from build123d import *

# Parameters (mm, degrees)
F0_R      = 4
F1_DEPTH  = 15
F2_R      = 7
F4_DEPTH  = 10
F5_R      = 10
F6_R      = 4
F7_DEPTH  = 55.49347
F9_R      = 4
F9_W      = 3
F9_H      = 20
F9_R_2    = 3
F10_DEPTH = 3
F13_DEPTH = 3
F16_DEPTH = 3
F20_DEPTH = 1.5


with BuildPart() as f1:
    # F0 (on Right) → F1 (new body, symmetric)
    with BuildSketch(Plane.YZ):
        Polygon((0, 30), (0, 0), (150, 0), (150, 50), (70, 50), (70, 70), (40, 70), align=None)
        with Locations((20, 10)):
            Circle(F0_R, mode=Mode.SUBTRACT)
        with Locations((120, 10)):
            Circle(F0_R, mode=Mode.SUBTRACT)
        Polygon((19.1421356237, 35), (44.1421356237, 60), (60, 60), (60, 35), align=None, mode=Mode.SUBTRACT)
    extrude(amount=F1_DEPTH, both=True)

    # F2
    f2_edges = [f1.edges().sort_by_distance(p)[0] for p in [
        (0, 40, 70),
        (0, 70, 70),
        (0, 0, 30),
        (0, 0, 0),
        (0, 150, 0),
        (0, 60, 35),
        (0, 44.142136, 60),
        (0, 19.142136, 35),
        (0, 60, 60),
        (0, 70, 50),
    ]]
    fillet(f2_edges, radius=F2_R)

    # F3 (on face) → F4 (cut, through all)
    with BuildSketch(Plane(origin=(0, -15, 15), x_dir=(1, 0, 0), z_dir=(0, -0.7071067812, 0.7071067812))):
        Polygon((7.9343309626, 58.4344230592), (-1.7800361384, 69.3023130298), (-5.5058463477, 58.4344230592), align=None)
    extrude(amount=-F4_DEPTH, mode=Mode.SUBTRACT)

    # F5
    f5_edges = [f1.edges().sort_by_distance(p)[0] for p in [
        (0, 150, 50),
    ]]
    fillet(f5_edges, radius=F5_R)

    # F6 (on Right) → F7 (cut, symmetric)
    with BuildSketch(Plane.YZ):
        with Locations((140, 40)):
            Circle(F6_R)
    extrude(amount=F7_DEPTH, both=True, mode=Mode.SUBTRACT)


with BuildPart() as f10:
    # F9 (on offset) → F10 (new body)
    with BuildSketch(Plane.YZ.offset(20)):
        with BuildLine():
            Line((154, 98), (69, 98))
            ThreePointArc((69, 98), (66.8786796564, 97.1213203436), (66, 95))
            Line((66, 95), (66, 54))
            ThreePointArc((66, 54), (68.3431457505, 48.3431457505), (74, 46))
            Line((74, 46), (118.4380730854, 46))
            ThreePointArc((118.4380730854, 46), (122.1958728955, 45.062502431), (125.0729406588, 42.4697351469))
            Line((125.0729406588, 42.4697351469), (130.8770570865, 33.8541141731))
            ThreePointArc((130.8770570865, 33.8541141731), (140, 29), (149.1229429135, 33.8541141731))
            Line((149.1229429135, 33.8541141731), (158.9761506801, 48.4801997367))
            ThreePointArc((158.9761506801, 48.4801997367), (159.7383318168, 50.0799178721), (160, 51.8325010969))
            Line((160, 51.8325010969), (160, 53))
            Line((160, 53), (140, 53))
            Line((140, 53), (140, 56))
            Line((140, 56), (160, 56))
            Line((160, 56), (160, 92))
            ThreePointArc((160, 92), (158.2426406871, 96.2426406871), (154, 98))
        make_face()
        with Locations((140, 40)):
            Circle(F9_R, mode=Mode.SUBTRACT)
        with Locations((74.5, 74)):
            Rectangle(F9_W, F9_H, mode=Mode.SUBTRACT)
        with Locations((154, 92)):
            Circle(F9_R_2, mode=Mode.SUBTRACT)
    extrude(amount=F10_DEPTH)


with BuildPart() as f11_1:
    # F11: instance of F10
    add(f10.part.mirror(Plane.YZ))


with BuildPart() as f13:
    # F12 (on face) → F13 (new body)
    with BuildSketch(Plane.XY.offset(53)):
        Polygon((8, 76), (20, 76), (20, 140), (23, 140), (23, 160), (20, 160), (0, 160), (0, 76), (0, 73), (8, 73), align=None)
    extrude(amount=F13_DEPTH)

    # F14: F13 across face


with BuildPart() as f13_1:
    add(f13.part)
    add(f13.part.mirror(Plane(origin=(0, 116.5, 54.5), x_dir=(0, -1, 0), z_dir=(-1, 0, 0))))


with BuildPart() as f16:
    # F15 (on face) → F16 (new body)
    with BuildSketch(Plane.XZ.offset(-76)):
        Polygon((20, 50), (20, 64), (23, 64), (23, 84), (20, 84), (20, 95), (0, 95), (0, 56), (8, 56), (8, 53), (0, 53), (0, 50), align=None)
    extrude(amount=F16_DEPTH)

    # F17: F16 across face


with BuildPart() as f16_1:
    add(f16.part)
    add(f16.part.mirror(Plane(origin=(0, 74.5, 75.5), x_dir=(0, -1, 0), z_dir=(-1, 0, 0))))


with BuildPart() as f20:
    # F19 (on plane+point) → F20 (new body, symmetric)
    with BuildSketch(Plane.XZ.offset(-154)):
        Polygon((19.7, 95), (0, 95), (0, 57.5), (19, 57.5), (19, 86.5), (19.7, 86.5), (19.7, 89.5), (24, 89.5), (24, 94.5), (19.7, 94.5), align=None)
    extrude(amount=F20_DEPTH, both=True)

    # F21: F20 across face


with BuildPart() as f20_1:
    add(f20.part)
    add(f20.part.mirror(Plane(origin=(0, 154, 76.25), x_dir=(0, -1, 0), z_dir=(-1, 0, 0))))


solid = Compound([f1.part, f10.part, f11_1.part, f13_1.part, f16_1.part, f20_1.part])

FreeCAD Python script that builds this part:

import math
import FreeCAD as App
import Part
import Sketcher
from FreeCAD import Vector
Q = App.Units.Quantity


def edges_at(feature, points):
    """Names of the edges that pass closest to the given points."""
    edges = feature.Shape.Edges
    near = lambda p: min(range(len(edges)), key=lambda i: edges[i].distToShape(Part.Vertex(*p))[0])
    return sorted({f"Edge{near(p) + 1}" for p in points})

doc = App.newDocument("Part")
body = doc.addObject("PartDesign::Body", "Body")

sketch1 = body.newObject("Sketcher::SketchObject", "Sketch")
sketch1.AttachmentSupport = (doc.getObject("YZ_Plane"), [""])
sketch1.MapMode = "FlatFace"
sketch1.addGeometry([
    Part.LineSegment(Vector(0, 30, 0), Vector(0, 0, 0)),
    Part.LineSegment(Vector(0, 0, 0), Vector(150, 0, 0)),
    Part.LineSegment(Vector(150, 0, 0), Vector(150, 50, 0)),
    Part.LineSegment(Vector(150, 50, 0), Vector(70, 50, 0)),
    Part.LineSegment(Vector(70, 50, 0), Vector(70, 70, 0)),
    Part.LineSegment(Vector(70, 70, 0), Vector(40, 70, 0)),
    Part.LineSegment(Vector(40, 70, 0), Vector(0, 30, 0)),
    Part.Circle(Vector(20, 10, 0), Vector(0, 0, 1), 4),
    Part.Circle(Vector(120, 10, 0), Vector(0, 0, 1), 4),
    Part.LineSegment(Vector(60, 35, 0), Vector(19.1, 35, 0)),
    Part.LineSegment(Vector(19.1, 35, 0), Vector(44.1, 60, 0)),
    Part.LineSegment(Vector(44.1, 60, 0), Vector(60, 60, 0)),
    Part.LineSegment(Vector(60, 60, 0), Vector(60, 35, 0)),
], False)
sketch1.addConstraint([
    Sketcher.Constraint("Coincident", 0, 2, 1, 1),
    Sketcher.Constraint("Coincident", 1, 2, 2, 1),
    Sketcher.Constraint("Coincident", 2, 2, 3, 1),
    Sketcher.Constraint("Coincident", 3, 2, 4, 1),
    Sketcher.Constraint("Coincident", 4, 2, 5, 1),
    Sketcher.Constraint("Coincident", 5, 2, 6, 1),
    Sketcher.Constraint("Coincident", 6, 2, 0, 1),
    Sketcher.Constraint("Coincident", 9, 2, 10, 1),
    Sketcher.Constraint("Coincident", 10, 2, 11, 1),
    Sketcher.Constraint("Coincident", 11, 2, 12, 1),
    Sketcher.Constraint("Coincident", 12, 2, 9, 1),
    Sketcher.Constraint("Vertical", 0),
    Sketcher.Constraint("Horizontal", 1),
    Sketcher.Constraint("Vertical", 2),
    Sketcher.Constraint("Horizontal", 3),
    Sketcher.Constraint("Vertical", 4),
    Sketcher.Constraint("Horizontal", 5),
    Sketcher.Constraint("Horizontal", 9),
    Sketcher.Constraint("Horizontal", 11),
    Sketcher.Constraint("Vertical", 12),
    Sketcher.Constraint("Coincident", 0, 2, -1, 1),
    Sketcher.Constraint("Equal", 7, 8),
    Sketcher.Constraint("Parallel", 6, 10),
    Sketcher.Constraint("Horizontal", 7, 3, 8, 3),
    Sketcher.Constraint("Equal", 5, 0),
    Sketcher.Constraint("Diameter", 7, Q("8 mm")),
    Sketcher.Constraint("DistanceX", 1, 1, 1, 2, Q("150 mm")),
    Sketcher.Constraint("DistanceX", 3, 2, 3, 1, Q("80 mm")),
    Sketcher.Constraint("DistanceX", 5, 2, 5, 1, Q("30 mm")),
    Sketcher.Constraint("DistanceY", 2, 1, 2, 2, Q("50 mm")),
    Sketcher.Constraint("DistanceY", 4, 1, 4, 2, Q("20 mm")),
    Sketcher.Constraint("DistanceY", 12, 2, 12, 1, Q("25 mm")),
    Sketcher.Constraint("DistanceX", -1, 1, 7, 3, Q("20 mm")),
    Sketcher.Constraint("DistanceY", -1, 1, 7, 3, Q("10 mm")),
    Sketcher.Constraint("DistanceX", -1, 1, 8, 3, Q("120 mm")),
    Sketcher.Constraint("DistanceY", -1, 1, 9, 2, Q("35 mm")),
    Sketcher.Constraint("DistanceX", -1, 1, 11, 2, Q("60 mm")),
    Sketcher.Constraint("DistanceX", 9, 2, 9, 1, Q("40.857864 mm")),
])
pad1 = body.newObject("PartDesign::Pad", "Pad")
pad1.Profile = sketch1
pad1.Length = 30
pad1.Midplane = True
doc.recompute()

fillet = body.newObject("PartDesign::Fillet", "Fillet")
fillet.Base = (pad1, edges_at(pad1, [
    (0, 40, 70),
    (0, 70, 70),
    (0, 0, 30),
    (0, 0, 0),
    (0, 150, 0),
    (0, 60, 35),
    (0, 44.142, 60),
    (0, 19.142, 35),
    (0, 60, 60),
    (0, 70, 50),
]))
fillet.Radius = 7

sketch2 = body.newObject("Sketcher::SketchObject", "Sketch001")
sketch2.Placement = App.Placement(Vector(0, -15, 15), App.Rotation(Vector(1, 0, 0), Vector(0, 0.707106781, 0.707106781), Vector(0, -0.707106781, 0.707106781), "ZXY"))
sketch2.addGeometry([
    Part.LineSegment(Vector(8, 58, 0), Vector(-2, 69, 0)),
    Part.LineSegment(Vector(-2, 69, 0), Vector(-6, 58, 0)),
    Part.LineSegment(Vector(-6, 58, 0), Vector(8, 58, 0)),
], False)
sketch2.addConstraint([
    Sketcher.Constraint("Coincident", 0, 2, 1, 1),
    Sketcher.Constraint("Coincident", 1, 2, 2, 1),
    Sketcher.Constraint("Coincident", 2, 2, 0, 1),
    Sketcher.Constraint("Horizontal", 2),
    Sketcher.Constraint("DistanceX", 2, 1, 2, 2, Q("13.440177 mm")),
    Sketcher.Constraint("DistanceX", -1, 1, 2, 2, Q("7.934331 mm")),
    Sketcher.Constraint("DistanceX", 1, 2, 0, 2, Q("3.72581 mm")),
    Sketcher.Constraint("DistanceY", 1, 2, 0, 2, Q("10.86789 mm")),
    Sketcher.Constraint("DistanceY", -1, 1, 0, 2, Q("69.302313 mm")),
])
pocket1 = body.newObject("PartDesign::Pocket", "Pocket")
pocket1.Profile = sketch2
pocket1.Length = 10
doc.recompute()

fillet2 = body.newObject("PartDesign::Fillet", "Fillet001")
fillet2.Base = (pocket1, edges_at(pocket1, [(0, 150, 50)]))
fillet2.Radius = 10

sketch3 = body.newObject("Sketcher::SketchObject", "Sketch002")
sketch3.AttachmentSupport = (doc.getObject("YZ_Plane"), [""])
sketch3.MapMode = "FlatFace"
sketch3.addGeometry(Part.Circle(Vector(140, 40, 0), Vector(0, 0, 1), 4), False)
sketch3.addConstraint([
    Sketcher.Constraint("Diameter", 0, Q("8 mm")),
    Sketcher.Constraint("DistanceX", -1, 1, 0, 3, Q("140 mm")),
    Sketcher.Constraint("DistanceY", -1, 1, 0, 3, Q("40 mm")),
])
pocket2 = body.newObject("PartDesign::Pocket", "Pocket001")
pocket2.Profile = sketch3
pocket2.Length = 110.98694
pocket2.Midplane = True
body2 = doc.addObject("PartDesign::Body", "Body001")

sketch4 = body2.newObject("Sketcher::SketchObject", "Sketch003")
sketch4.AttachmentSupport = (doc.getObject("YZ_Plane001"), [""])
sketch4.MapMode = "FlatFace"
sketch4.AttachmentOffset = App.Placement(Vector(0, 0, 20), App.Rotation())
sketch4.addGeometry([
    Part.LineSegment(Vector(154, 98, 0), Vector(69, 98, 0)),
    Part.ArcOfCircle(Part.Circle(Vector(69, 95, 0), Vector(0, 0, 1), 3), math.radians(90), math.radians(180)),
    Part.LineSegment(Vector(66, 95, 0), Vector(66, 54, 0)),
    Part.ArcOfCircle(Part.Circle(Vector(74, 54, 0), Vector(0, 0, 1), 8), math.radians(180), math.radians(270)),
    Part.LineSegment(Vector(74, 46, 0), Vector(118.4, 46, 0)),
    Part.ArcOfCircle(Part.Circle(Vector(118.4, 38, 0), Vector(0, 0, 1), 8), math.radians(34), math.radians(90)),
    Part.LineSegment(Vector(125.1, 42.5, 0), Vector(130.9, 33.9, 0)),
    Part.ArcOfCircle(Part.Circle(Vector(140, 40, 0), Vector(0, 0, 1), 11), math.radians(-146), math.radians(-34)),
    Part.LineSegment(Vector(149.1, 33.9, 0), Vector(159, 48.5, 0)),
    Part.ArcOfCircle(Part.Circle(Vector(154, 51.8, 0), Vector(0, 0, 1), 6), math.radians(-34), math.radians(0)),
    Part.LineSegment(Vector(160, 51.8, 0), Vector(160, 53, 0)),
    Part.LineSegment(Vector(160, 53, 0), Vector(140, 53, 0)),
    Part.LineSegment(Vector(140, 53, 0), Vector(140, 56, 0)),
    Part.LineSegment(Vector(140, 56, 0), Vector(160, 56, 0)),
    Part.LineSegment(Vector(160, 56, 0), Vector(160, 92, 0)),
    Part.ArcOfCircle(Part.Circle(Vector(154, 92, 0), Vector(0, 0, 1), 6), math.radians(0), math.radians(90)),
    Part.Circle(Vector(140, 40, 0), Vector(0, 0, 1), 4),
    Part.LineSegment(Vector(76, 64, 0), Vector(73, 64, 0)),
    Part.LineSegment(Vector(73, 64, 0), Vector(73, 84, 0)),
    Part.LineSegment(Vector(73, 84, 0), Vector(76, 84, 0)),
    Part.LineSegment(Vector(76, 84, 0), Vector(76, 64, 0)),
    Part.Circle(Vector(154, 92, 0), Vector(0, 0, 1), 3),
], False)
sketch4.addConstraint([
    Sketcher.Constraint("Tangent", 0, 2, 1, 1),
    Sketcher.Constraint("Tangent", 1, 2, 2, 1),
    Sketcher.Constraint("Tangent", 2, 2, 3, 1),
    Sketcher.Constraint("Tangent", 3, 2, 4, 1),
    Sketcher.Constraint("Tangent", 4, 2, 5, 2),
    Sketcher.Constraint("Tangent", 5, 1, 6, 1),
    Sketcher.Constraint("Tangent", 6, 2, 7, 1),
    Sketcher.Constraint("Tangent", 7, 2, 8, 1),
    Sketcher.Constraint("Tangent", 8, 2, 9, 1),
    Sketcher.Constraint("Tangent", 9, 2, 10, 1),
    Sketcher.Constraint("Coincident", 10, 2, 11, 1),
    Sketcher.Constraint("Coincident", 11, 2, 12, 1),
    Sketcher.Constraint("Coincident", 12, 2, 13, 1),
    Sketcher.Constraint("Coincident", 13, 2, 14, 1),
    Sketcher.Constraint("Tangent", 14, 2, 15, 1),
    Sketcher.Constraint("Tangent", 15, 2, 0, 1),
    Sketcher.Constraint("Coincident", 17, 2, 18, 1),
    Sketcher.Constraint("Coincident", 18, 2, 19, 1),
    Sketcher.Constraint("Coincident", 19, 2, 20, 1),
    Sketcher.Constraint("Coincident", 20, 2, 17, 1),
    Sketcher.Constraint("Horizontal", 0),
    Sketcher.Constraint("Vertical", 2),
    Sketcher.Constraint("Horizontal", 4),
    Sketcher.Constraint("Vertical", 10),
    Sketcher.Constraint("Horizontal", 11),
    Sketcher.Constraint("Vertical", 12),
    Sketcher.Constraint("Horizontal", 13),
    Sketcher.Constraint("Vertical", 14),
    Sketcher.Constraint("Horizontal", 17),
    Sketcher.Constraint("Vertical", 18),
    Sketcher.Constraint("Horizontal", 19),
    Sketcher.Constraint("Vertical", 20),
    Sketcher.Constraint("Coincident", 16, 3, 7, 3),
    Sketcher.Constraint("Coincident", 21, 3, 15, 3),
    Sketcher.Constraint("Equal", 3, 5),
    Sketcher.Constraint("Equal", 9, 15),
    Sketcher.Constraint("Equal", 1, 21),
    Sketcher.Constraint("Horizontal", 6, 2, 7, 2),
    Sketcher.Constraint("Vertical", 9, 3, 15, 3),
    Sketcher.Constraint("Vertical", 16, 3, 11, 2),
    Sketcher.Constraint("Equal", 19, 12),
    Sketcher.Constraint("Equal", 13, 18),
    Sketcher.Constraint("Diameter", 16, Q("8 mm")),
    Sketcher.Constraint("Diameter", 21, Q("6 mm")),
    Sketcher.Constraint("Radius", 3, Q("8 mm")),
    Sketcher.Constraint("Radius", 7, Q("11 mm")),
    Sketcher.Constraint("Radius", 9, Q("6 mm")),
    Sketcher.Constraint("DistanceX", 0, 2, 0, 1, Q("85 mm")),
    Sketcher.Constraint("DistanceX", 11, 2, 11, 1, Q("20 mm")),
    Sketcher.Constraint("DistanceX", 17, 2, 17, 1, Q("3 mm")),
    Sketcher.Constraint("DistanceY", 2, 2, 2, 1, Q("41 mm")),
    Sketcher.Constraint("DistanceY", 14, 1, 14, 2, Q("36 mm")),
    Sketcher.Constraint("DistanceX", -1, 1, 1, 3, Q("69 mm")),
    Sketcher.Constraint("DistanceY", -1, 1, 1, 3, Q("95 mm")),
    Sketcher.Constraint("DistanceY", -1, 1, 7, 3, Q("40 mm")),
    Sketcher.Constraint("DistanceX", -1, 1, 17, 2, Q("73 mm")),
    Sketcher.Constraint("DistanceY", -1, 1, 17, 2, Q("64 mm")),
    Sketcher.Constraint("DistanceY", 10, 1, 10, 2, Q("1.167499 mm")),
])
pad2 = body2.newObject("PartDesign::Pad", "Pad001")
pad2.Profile = sketch4
pad2.Length = 3
body3 = doc.addObject("PartDesign::Body", "Body002")
doc.recompute()

mirroring = doc.addObject("Part::Mirroring", "Mirroring")
mirroring.Source = body2
mirroring.Base = Vector(0, 0, 0)
mirroring.Normal = Vector(1, 0, 0)
body3.BaseFeature = mirroring
doc.recompute()
body4 = doc.addObject("PartDesign::Body", "Body003")

sketch5 = body4.newObject("Sketcher::SketchObject", "Sketch004")
sketch5.AttachmentSupport = (doc.getObject("XY_Plane003"), [""])
sketch5.MapMode = "FlatFace"
sketch5.AttachmentOffset = App.Placement(Vector(0, 0, 53), App.Rotation())
sketch5.addGeometry([
    Part.LineSegment(Vector(8, 76, 0), Vector(20, 76, 0)),
    Part.LineSegment(Vector(20, 76, 0), Vector(20, 140, 0)),
    Part.LineSegment(Vector(20, 140, 0), Vector(23, 140, 0)),
    Part.LineSegment(Vector(23, 140, 0), Vector(23, 160, 0)),
    Part.LineSegment(Vector(23, 160, 0), Vector(0, 160, 0)),
    Part.LineSegment(Vector(0, 160, 0), Vector(0, 73, 0)),
    Part.LineSegment(Vector(0, 73, 0), Vector(8, 73, 0)),
    Part.LineSegment(Vector(8, 73, 0), Vector(8, 76, 0)),
], False)
sketch5.addConstraint([
    Sketcher.Constraint("Coincident", 0, 2, 1, 1),
    Sketcher.Constraint("Coincident", 1, 2, 2, 1),
    Sketcher.Constraint("Coincident", 2, 2, 3, 1),
    Sketcher.Constraint("Coincident", 3, 2, 4, 1),
    Sketcher.Constraint("Coincident", 4, 2, 5, 1),
    Sketcher.Constraint("Coincident", 5, 2, 6, 1),
    Sketcher.Constraint("Coincident", 6, 2, 7, 1),
    Sketcher.Constraint("Coincident", 7, 2, 0, 1),
    Sketcher.Constraint("Horizontal", 0),
    Sketcher.Constraint("Vertical", 1),
    Sketcher.Constraint("Horizontal", 2),
    Sketcher.Constraint("Vertical", 3),
    Sketcher.Constraint("Horizontal", 4),
    Sketcher.Constraint("Vertical", 5),
    Sketcher.Constraint("Horizontal", 6),
    Sketcher.Constraint("Vertical", 7),
    Sketcher.Constraint("PointOnObject", 4, 2, -2),
    Sketcher.Constraint("Equal", 2, 7),
    Sketcher.Constraint("DistanceX", 0, 1, 0, 2, Q("12 mm")),
    Sketcher.Constraint("DistanceX", 2, 1, 2, 2, Q("3 mm")),
    Sketcher.Constraint("DistanceX", 4, 2, 4, 1, Q("23 mm")),
    Sketcher.Constraint("DistanceY", 1, 1, 1, 2, Q("64 mm")),
    Sketcher.Constraint("DistanceY", 3, 1, 3, 2, Q("20 mm")),
    Sketcher.Constraint("DistanceY", -1, 1, 0, 2, Q("76 mm")),
])
pad3 = body4.newObject("PartDesign::Pad", "Pad002")
pad3.Profile = sketch5
pad3.Length = 3
body5 = doc.addObject("PartDesign::Body", "Body004")
doc.recompute()

body5.BaseFeature = body4
doc.recompute()

mirroring2 = doc.addObject("Part::Mirroring", "Mirroring001")
mirroring2.Source = body4
mirroring2.Base = Vector(0, 116.5, 54.5)
mirroring2.Normal = Vector(-1, 0, 0)
body6 = doc.addObject("PartDesign::Body", "Body005")
body6.BaseFeature = mirroring2
boolean = body5.newObject("PartDesign::Boolean", "Boolean")
boolean.Type = "Fuse"
boolean.addObjects([body6])
doc.recompute()
body7 = doc.addObject("PartDesign::Body", "Body006")

sketch6 = body7.newObject("Sketcher::SketchObject", "Sketch005")
sketch6.AttachmentSupport = (doc.getObject("XZ_Plane006"), [""])
sketch6.MapMode = "FlatFace"
sketch6.AttachmentOffset = App.Placement(Vector(0, 0, -76), App.Rotation())
sketch6.addGeometry([
    Part.LineSegment(Vector(20, 50, 0), Vector(20, 64, 0)),
    Part.LineSegment(Vector(20, 64, 0), Vector(23, 64, 0)),
    Part.LineSegment(Vector(23, 64, 0), Vector(23, 84, 0)),
    Part.LineSegment(Vector(23, 84, 0), Vector(20, 84, 0)),
    Part.LineSegment(Vector(20, 84, 0), Vector(20, 95, 0)),
    Part.LineSegment(Vector(20, 95, 0), Vector(0, 95, 0)),
    Part.LineSegment(Vector(0, 95, 0), Vector(0, 56, 0)),
    Part.LineSegment(Vector(0, 56, 0), Vector(8, 56, 0)),
    Part.LineSegment(Vector(8, 56, 0), Vector(8, 53, 0)),
    Part.LineSegment(Vector(8, 53, 0), Vector(0, 53, 0)),
    Part.LineSegment(Vector(0, 53, 0), Vector(0, 50, 0)),
    Part.LineSegment(Vector(0, 50, 0), Vector(20, 50, 0)),
], False)
sketch6.addConstraint([
    Sketcher.Constraint("Coincident", 0, 2, 1, 1),
    Sketcher.Constraint("Coincident", 1, 2, 2, 1),
    Sketcher.Constraint("Coincident", 2, 2, 3, 1),
    Sketcher.Constraint("Coincident", 3, 2, 4, 1),
    Sketcher.Constraint("Coincident", 4, 2, 5, 1),
    Sketcher.Constraint("Coincident", 5, 2, 6, 1),
    Sketcher.Constraint("Coincident", 6, 2, 7, 1),
    Sketcher.Constraint("Coincident", 7, 2, 8, 1),
    Sketcher.Constraint("Coincident", 8, 2, 9, 1),
    Sketcher.Constraint("Coincident", 9, 2, 10, 1),
    Sketcher.Constraint("Coincident", 10, 2, 11, 1),
    Sketcher.Constraint("Coincident", 11, 2, 0, 1),
    Sketcher.Constraint("Vertical", 0),
    Sketcher.Constraint("Horizontal", 1),
    Sketcher.Constraint("Vertical", 2),
    Sketcher.Constraint("Horizontal", 3),
    Sketcher.Constraint("Vertical", 4),
    Sketcher.Constraint("Horizontal", 5),
    Sketcher.Constraint("Vertical", 6),
    Sketcher.Constraint("Horizontal", 7),
    Sketcher.Constraint("Vertical", 8),
    Sketcher.Constraint("Horizontal", 9),
    Sketcher.Constraint("Vertical", 10),
    Sketcher.Constraint("Horizontal", 11),
    Sketcher.Constraint("PointOnObject", 5, 2, -2),
    Sketcher.Constraint("PointOnObject", 9, 2, -2),
    Sketcher.Constraint("Vertical", 0, 2, 3, 2),
    Sketcher.Constraint("Equal", 11, 2),
    Sketcher.Constraint("Equal", 3, 8),
    Sketcher.Constraint("Equal", 8, 10),
    Sketcher.Constraint("DistanceX", 1, 1, 1, 2, Q("3 mm")),
    Sketcher.Constraint("DistanceX", 5, 2, 5, 1, Q("20 mm")),
    Sketcher.Constraint("DistanceX", 7, 1, 7, 2, Q("8 mm")),
    Sketcher.Constraint("DistanceY", 0, 1, 0, 2, Q("14 mm")),
    Sketcher.Constraint("DistanceY", 4, 1, 4, 2, Q("11 mm")),
    Sketcher.Constraint("DistanceY", -1, 1, 0, 2, Q("64 mm")),
])
pad4 = body7.newObject("PartDesign::Pad", "Pad003")
pad4.Profile = sketch6
pad4.Length = 3
body8 = doc.addObject("PartDesign::Body", "Body007")
doc.recompute()

body8.BaseFeature = body7
doc.recompute()

mirroring3 = doc.addObject("Part::Mirroring", "Mirroring002")
mirroring3.Source = body7
mirroring3.Base = Vector(0, 74.5, 75.5)
mirroring3.Normal = Vector(-1, 0, 0)
body9 = doc.addObject("PartDesign::Body", "Body008")
body9.BaseFeature = mirroring3
boolean2 = body8.newObject("PartDesign::Boolean", "Boolean001")
boolean2.Type = "Fuse"
boolean2.addObjects([body9])
doc.recompute()
body10 = doc.addObject("PartDesign::Body", "Body009")

sketch7 = body10.newObject("Sketcher::SketchObject", "Sketch006")
sketch7.AttachmentSupport = (doc.getObject("XZ_Plane009"), [""])
sketch7.MapMode = "FlatFace"
sketch7.AttachmentOffset = App.Placement(Vector(0, 0, -154), App.Rotation())
sketch7.addGeometry([
    Part.LineSegment(Vector(19.7, 95, 0), Vector(0, 95, 0)),
    Part.LineSegment(Vector(0, 95, 0), Vector(0, 57.5, 0)),
    Part.LineSegment(Vector(0, 57.5, 0), Vector(19, 57.5, 0)),
    Part.LineSegment(Vector(19, 57.5, 0), Vector(19, 86.5, 0)),
    Part.LineSegment(Vector(19, 86.5, 0), Vector(19.7, 86.5, 0)),
    Part.LineSegment(Vector(19.7, 86.5, 0), Vector(19.7, 89.5, 0)),
    Part.LineSegment(Vector(19.7, 89.5, 0), Vector(24, 89.5, 0)),
    Part.LineSegment(Vector(24, 89.5, 0), Vector(24, 94.5, 0)),
    Part.LineSegment(Vector(24, 94.5, 0), Vector(19.7, 94.5, 0)),
    Part.LineSegment(Vector(19.7, 94.5, 0), Vector(19.7, 95, 0)),
], False)
sketch7.addConstraint([
    Sketcher.Constraint("Coincident", 0, 2, 1, 1),
    Sketcher.Constraint("Coincident", 1, 2, 2, 1),
    Sketcher.Constraint("Coincident", 2, 2, 3, 1),
    Sketcher.Constraint("Coincident", 3, 2, 4, 1),
    Sketcher.Constraint("Coincident", 4, 2, 5, 1),
    Sketcher.Constraint("Coincident", 5, 2, 6, 1),
    Sketcher.Constraint("Coincident", 6, 2, 7, 1),
    Sketcher.Constraint("Coincident", 7, 2, 8, 1),
    Sketcher.Constraint("Coincident", 8, 2, 9, 1),
    Sketcher.Constraint("Coincident", 9, 2, 0, 1),
    Sketcher.Constraint("Horizontal", 0),
    Sketcher.Constraint("Vertical", 1),
    Sketcher.Constraint("Horizontal", 2),
    Sketcher.Constraint("Vertical", 3),
    Sketcher.Constraint("Horizontal", 4),
    Sketcher.Constraint("Vertical", 5),
    Sketcher.Constraint("Horizontal", 6),
    Sketcher.Constraint("Vertical", 7),
    Sketcher.Constraint("Horizontal", 8),
    Sketcher.Constraint("Vertical", 9),
    Sketcher.Constraint("PointOnObject", 0, 2, -2),
    Sketcher.Constraint("Vertical", 5, 2, 8, 2),
    Sketcher.Constraint("DistanceX", 2, 1, 2, 2, Q("19 mm")),
    Sketcher.Constraint("DistanceY", 3, 1, 3, 2, Q("29 mm")),
    Sketcher.Constraint("DistanceY", 5, 1, 5, 2, Q("3 mm")),
    Sketcher.Constraint("DistanceY", 7, 1, 7, 2, Q("5 mm")),
    Sketcher.Constraint("DistanceX", 0, 2, 0, 1, Q("19.7 mm")),
    Sketcher.Constraint("DistanceX", 6, 1, 6, 2, Q("4.3 mm")),
    Sketcher.Constraint("DistanceY", 1, 2, 1, 1, Q("37.5 mm")),
    Sketcher.Constraint("DistanceY", -1, 1, 0, 2, Q("95 mm")),
])
pad5 = body10.newObject("PartDesign::Pad", "Pad004")
pad5.Profile = sketch7
pad5.Length = 3
pad5.Midplane = True
body11 = doc.addObject("PartDesign::Body", "Body010")
doc.recompute()

body11.BaseFeature = body10
doc.recompute()

mirroring4 = doc.addObject("Part::Mirroring", "Mirroring003")
mirroring4.Source = body10
mirroring4.Base = Vector(0, 154, 76.25)
mirroring4.Normal = Vector(-1, 0, 0)
body12 = doc.addObject("PartDesign::Body", "Body011")
body12.BaseFeature = mirroring4
boolean3 = body11.newObject("PartDesign::Boolean", "Boolean002")
boolean3.Type = "Fuse"
boolean3.addObjects([body12])
doc.recompute()
mirroring.Visibility = False
mirroring2.Visibility = False
mirroring3.Visibility = False
mirroring4.Visibility = False

doc.recompute()
